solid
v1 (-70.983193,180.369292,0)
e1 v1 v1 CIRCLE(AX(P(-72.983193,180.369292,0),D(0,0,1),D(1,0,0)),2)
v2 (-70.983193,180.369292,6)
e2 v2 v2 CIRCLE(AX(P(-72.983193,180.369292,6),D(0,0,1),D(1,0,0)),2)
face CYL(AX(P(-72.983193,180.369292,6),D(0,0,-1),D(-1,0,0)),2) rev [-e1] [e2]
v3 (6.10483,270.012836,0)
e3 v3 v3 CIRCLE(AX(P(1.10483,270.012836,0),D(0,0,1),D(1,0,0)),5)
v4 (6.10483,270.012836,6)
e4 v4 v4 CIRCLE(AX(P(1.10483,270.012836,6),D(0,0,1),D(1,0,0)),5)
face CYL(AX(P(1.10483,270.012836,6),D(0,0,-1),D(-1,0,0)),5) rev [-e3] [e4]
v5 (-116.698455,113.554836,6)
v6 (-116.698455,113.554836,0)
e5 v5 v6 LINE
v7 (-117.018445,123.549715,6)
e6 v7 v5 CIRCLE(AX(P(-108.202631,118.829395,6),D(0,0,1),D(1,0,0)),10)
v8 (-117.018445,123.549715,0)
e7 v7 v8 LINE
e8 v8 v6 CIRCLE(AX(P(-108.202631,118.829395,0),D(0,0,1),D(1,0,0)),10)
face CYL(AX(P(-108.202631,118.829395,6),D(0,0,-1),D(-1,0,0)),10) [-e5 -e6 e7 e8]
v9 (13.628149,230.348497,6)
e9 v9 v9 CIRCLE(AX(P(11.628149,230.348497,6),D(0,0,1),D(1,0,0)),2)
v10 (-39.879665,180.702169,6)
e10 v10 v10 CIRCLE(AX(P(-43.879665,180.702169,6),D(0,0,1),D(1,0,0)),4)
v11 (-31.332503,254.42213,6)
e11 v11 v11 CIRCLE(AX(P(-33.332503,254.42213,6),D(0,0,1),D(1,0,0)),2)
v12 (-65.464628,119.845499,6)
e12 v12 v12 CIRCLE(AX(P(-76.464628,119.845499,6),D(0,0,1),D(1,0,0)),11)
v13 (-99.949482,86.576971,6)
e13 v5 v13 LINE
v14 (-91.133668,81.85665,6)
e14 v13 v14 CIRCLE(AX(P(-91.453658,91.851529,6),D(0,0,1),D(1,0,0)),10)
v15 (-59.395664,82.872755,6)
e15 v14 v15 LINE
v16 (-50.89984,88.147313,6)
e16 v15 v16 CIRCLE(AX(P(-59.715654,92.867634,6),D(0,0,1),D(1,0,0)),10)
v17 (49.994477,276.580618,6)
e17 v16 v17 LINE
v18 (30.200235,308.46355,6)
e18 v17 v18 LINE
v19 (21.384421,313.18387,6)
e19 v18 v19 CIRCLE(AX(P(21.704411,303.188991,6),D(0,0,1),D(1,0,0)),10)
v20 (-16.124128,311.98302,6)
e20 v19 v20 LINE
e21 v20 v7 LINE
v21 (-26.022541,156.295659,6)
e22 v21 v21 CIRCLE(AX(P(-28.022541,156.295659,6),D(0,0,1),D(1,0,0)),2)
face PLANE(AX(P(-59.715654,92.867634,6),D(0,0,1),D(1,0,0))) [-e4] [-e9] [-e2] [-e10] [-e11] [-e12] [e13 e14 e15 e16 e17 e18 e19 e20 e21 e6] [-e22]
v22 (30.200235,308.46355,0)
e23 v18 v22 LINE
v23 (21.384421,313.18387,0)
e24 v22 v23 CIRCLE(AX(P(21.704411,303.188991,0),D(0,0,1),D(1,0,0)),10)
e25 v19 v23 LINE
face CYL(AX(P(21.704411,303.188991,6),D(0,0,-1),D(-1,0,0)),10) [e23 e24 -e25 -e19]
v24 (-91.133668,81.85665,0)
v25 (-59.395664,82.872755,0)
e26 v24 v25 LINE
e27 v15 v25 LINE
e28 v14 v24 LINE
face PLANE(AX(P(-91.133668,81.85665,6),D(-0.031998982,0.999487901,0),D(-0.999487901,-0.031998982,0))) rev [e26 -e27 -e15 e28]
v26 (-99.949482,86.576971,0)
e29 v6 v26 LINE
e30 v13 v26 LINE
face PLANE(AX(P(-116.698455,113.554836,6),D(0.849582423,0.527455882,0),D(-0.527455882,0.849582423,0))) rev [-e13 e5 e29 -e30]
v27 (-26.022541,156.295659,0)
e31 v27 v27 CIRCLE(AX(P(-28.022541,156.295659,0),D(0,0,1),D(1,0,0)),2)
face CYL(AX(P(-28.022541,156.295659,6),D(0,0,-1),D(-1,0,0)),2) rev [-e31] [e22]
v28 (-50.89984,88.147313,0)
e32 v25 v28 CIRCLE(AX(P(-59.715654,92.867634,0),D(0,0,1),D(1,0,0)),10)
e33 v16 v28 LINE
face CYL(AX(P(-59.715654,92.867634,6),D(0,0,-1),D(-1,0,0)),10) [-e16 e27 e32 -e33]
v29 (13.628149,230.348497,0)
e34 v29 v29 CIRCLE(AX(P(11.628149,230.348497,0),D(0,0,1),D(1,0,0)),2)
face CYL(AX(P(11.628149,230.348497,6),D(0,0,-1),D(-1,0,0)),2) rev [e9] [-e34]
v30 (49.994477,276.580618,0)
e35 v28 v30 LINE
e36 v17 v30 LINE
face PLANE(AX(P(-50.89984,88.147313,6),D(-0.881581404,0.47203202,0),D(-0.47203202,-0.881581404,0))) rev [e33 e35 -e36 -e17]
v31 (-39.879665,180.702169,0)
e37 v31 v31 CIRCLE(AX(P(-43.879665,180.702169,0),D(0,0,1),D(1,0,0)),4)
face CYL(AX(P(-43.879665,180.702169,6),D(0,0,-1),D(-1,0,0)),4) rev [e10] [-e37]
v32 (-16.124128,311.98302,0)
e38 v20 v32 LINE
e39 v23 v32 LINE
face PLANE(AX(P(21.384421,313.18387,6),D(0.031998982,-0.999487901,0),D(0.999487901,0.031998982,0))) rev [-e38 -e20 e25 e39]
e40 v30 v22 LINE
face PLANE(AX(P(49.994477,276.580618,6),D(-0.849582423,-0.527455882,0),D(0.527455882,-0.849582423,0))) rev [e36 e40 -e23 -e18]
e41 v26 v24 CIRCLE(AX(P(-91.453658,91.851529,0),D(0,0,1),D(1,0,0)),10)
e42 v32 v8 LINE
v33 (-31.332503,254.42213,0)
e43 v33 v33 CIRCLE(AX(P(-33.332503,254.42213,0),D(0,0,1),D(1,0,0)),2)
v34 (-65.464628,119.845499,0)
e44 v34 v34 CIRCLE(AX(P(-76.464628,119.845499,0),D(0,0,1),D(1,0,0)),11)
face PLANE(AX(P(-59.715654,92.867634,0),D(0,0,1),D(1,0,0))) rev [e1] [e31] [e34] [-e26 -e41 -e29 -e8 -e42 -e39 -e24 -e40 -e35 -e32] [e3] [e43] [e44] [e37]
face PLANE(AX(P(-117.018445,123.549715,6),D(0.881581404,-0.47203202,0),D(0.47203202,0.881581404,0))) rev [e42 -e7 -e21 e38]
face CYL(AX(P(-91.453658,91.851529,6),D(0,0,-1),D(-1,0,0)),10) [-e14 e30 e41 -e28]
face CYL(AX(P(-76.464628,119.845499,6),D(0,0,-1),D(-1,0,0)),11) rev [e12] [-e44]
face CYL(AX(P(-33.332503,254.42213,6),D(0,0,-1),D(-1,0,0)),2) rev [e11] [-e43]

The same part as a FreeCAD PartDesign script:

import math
import FreeCAD as App
import Part
import Sketcher

V = App.Vector

doc = App.newDocument("Part")
params = doc.addObject("Spreadsheet::Sheet", "Params")
for row, (alias, value) in enumerate([
    ("sketch1_diameter", "22 mm"),
    ("sketch1_diameter2", "4 mm"),
    ("sketch1_diameter3", "8 mm"),
    ("sketch1_diameter4", "10 mm"),
    ("sketch1_radius", "10 mm"),
    ("pad1_length", "6 mm"),
], start=1):
    params.set(f"A{row}", alias)
    params.set(f"B{row}", "=" + value)
    params.setAlias(f"B{row}", alias)

body = doc.addObject("PartDesign::Body", "Body")

# Sketch on XY plane
sketch1 = body.newObject("Sketcher::SketchObject", "Sketch")
sketch1.AttachmentSupport = (doc.getObject("XY_Plane"), [""])
sketch1.MapMode = "FlatFace"
sketch1.addGeometry(Part.LineSegment(V(-91.1, 81.9, 0), V(-59.4, 82.9, 0)), False)
sketch1.addGeometry(Part.ArcOfCircle(Part.Circle(V(-59.7, 92.9, 0), V(0, 0, 1), 10), math.radians(-88), math.radians(-28)), False)
sketch1.addGeometry(Part.LineSegment(V(-50.9, 88.1, 0), V(50, 276.6, 0)), False)
sketch1.addGeometry(Part.LineSegment(V(50, 276.6, 0), V(30.2, 308.5, 0)), False)
sketch1.addGeometry(Part.ArcOfCircle(Part.Circle(V(21.7, 303.2, 0), V(0, 0, 1), 10), math.radians(32), math.radians(92)), False)
sketch1.addGeometry(Part.LineSegment(V(21.4, 313.2, 0), V(-16.1, 312, 0)), False)
sketch1.addGeometry(Part.LineSegment(V(-16.1, 312, 0), V(-117, 123.5, 0)), False)
sketch1.addGeometry(Part.ArcOfCircle(Part.Circle(V(-108.2, 118.8, 0), V(0, 0, 1), 10), math.radians(152), math.radians(212)), False)
sketch1.addGeometry(Part.LineSegment(V(-116.7, 113.6, 0), V(-99.9, 86.6, 0)), False)
sketch1.addGeometry(Part.ArcOfCircle(Part.Circle(V(-91.5, 91.9, 0), V(0, 0, 1), 10), math.radians(-148), math.radians(-88)), False)
sketch1.addGeometry(Part.Circle(V(-76.5, 119.8, 0), V(0, 0, 1), 11), False)
sketch1.addGeometry(Part.Circle(V(-73, 180.4, 0), V(0, 0, 1), 2), False)
sketch1.addGeometry(Part.Circle(V(-43.9, 180.7, 0), V(0, 0, 1), 4), False)
sketch1.addGeometry(Part.Circle(V(-28, 156.3, 0), V(0, 0, 1), 2), False)
sketch1.addGeometry(Part.Circle(V(11.6, 230.3, 0), V(0, 0, 1), 2), False)
sketch1.addGeometry(Part.Circle(V(-33.3, 254.4, 0), V(0, 0, 1), 2), False)
sketch1.addGeometry(Part.Circle(V(1.1, 270, 0), V(0, 0, 1), 5), False)
sketch1.addConstraint(Sketcher.Constraint("Tangent", 0, 2, 1, 1))
sketch1.addConstraint(Sketcher.Constraint("Tangent", 1, 2, 2, 1))
sketch1.addConstraint(Sketcher.Constraint("Coincident", 2, 2, 3, 1))
sketch1.addConstraint(Sketcher.Constraint("Tangent", 3, 2, 4, 1))
sketch1.addConstraint(Sketcher.Constraint("Tangent", 4, 2, 5, 1))
sketch1.addConstraint(Sketcher.Constraint("Coincident", 5, 2, 6, 1))
sketch1.addConstraint(Sketcher.Constraint("Tangent", 6, 2, 7, 1))
sketch1.addConstraint(Sketcher.Constraint("Tangent", 7, 2, 8, 1))
sketch1.addConstraint(Sketcher.Constraint("Tangent", 8, 2, 9, 1))
sketch1.addConstraint(Sketcher.Constraint("Tangent", 9, 2, 0, 1))
sketch1.addConstraint(Sketcher.Constraint("Equal", 1, 4))
sketch1.addConstraint(Sketcher.Constraint("Equal", 4, 7))
sketch1.addConstraint(Sketcher.Constraint("Equal", 7, 9))
sketch1.addConstraint(Sketcher.Constraint("Equal", 11, 13))
sketch1.addConstraint(Sketcher.Constraint("Equal", 13, 14))
sketch1.addConstraint(Sketcher.Constraint("Equal", 14, 15))
sketch1.addConstraint(Sketcher.Constraint("Parallel", 0, 5))
sketch1.addConstraint(Sketcher.Constraint("Parallel", 2, 6))
sketch1.addConstraint(Sketcher.Constraint("Parallel", 3, 8))
sketch1.addConstraint(Sketcher.Constraint("Equal", 3, 5))
sketch1.addConstraint(Sketcher.Constraint("Equal", 2, 6))
sketch1.addConstraint(Sketcher.Constraint("Equal", 0, 8))
sketch1.addConstraint(Sketcher.Constraint("Diameter", 10, 22.0))
sketch1.addConstraint(Sketcher.Constraint("Diameter", 11, 4.0))
sketch1.addConstraint(Sketcher.Constraint("Diameter", 12, 8.0))
sketch1.addConstraint(Sketcher.Constraint("Diameter", 16, 10.0))
sketch1.addConstraint(Sketcher.Constraint("Radius", 1, 10.0))
sketch1.addConstraint(Sketcher.Constraint("DistanceY", 10, 3, 14, 3, 110.502999))
sketch1.addConstraint(Sketcher.Constraint("DistanceY", -1, 1, 10, 3, 119.845499))
sketch1.addConstraint(Sketcher.Constraint("DistanceY", 11, 3, 4, 3, 122.819699))
sketch1.addConstraint(Sketcher.Constraint("DistanceX", 7, 2, 1, 3, 56.982801))
sketch1.addConstraint(Sketcher.Constraint("DistanceX", -1, 1, 4, 3, 21.704411))
sketch1.addConstraint(Sketcher.Constraint("DistanceY", -1, 1, 4, 3, 303.188991))
sketch1.addConstraint(Sketcher.Constraint("DistanceX", 7, 3, -1, 1, 108.202631))
sketch1.addConstraint(Sketcher.Constraint("DistanceY", -1, 1, 9, 3, 91.851529))
sketch1.addConstraint(Sketcher.Constraint("DistanceY", -1, 1, 12, 3, 180.702169))
sketch1.addConstraint(Sketcher.Constraint("DistanceX", 13, 3, -1, 1, 28.022541))
sketch1.addConstraint(Sketcher.Constraint("DistanceY", -1, 1, 13, 3, 156.295659))
sketch1.addConstraint(Sketcher.Constraint("DistanceX", -1, 1, 14, 3, 11.628149))
sketch1.addConstraint(Sketcher.Constraint("DistanceY", -1, 1, 15, 3, 254.42213))
sketch1.addConstraint(Sketcher.Constraint("DistanceX", -1, 1, 16, 3, 1.10483))
sketch1.addConstraint(Sketcher.Constraint("DistanceX", 1, 2, -1, 1, 50.89984))
sketch1.addConstraint(Sketcher.Constraint("DistanceX", 9, 3, 10, 3, 14.98903))
sketch1.addConstraint(Sketcher.Constraint("DistanceX", 7, 3, 11, 3, 35.219439))
sketch1.addConstraint(Sketcher.Constraint("DistanceX", 1, 3, 12, 3, 15.835989))
sketch1.addConstraint(Sketcher.Constraint("DistanceX", 15, 3, 14, 3, 44.960652))
sketch1.addConstraint(Sketcher.Constraint("DistanceY", 14, 3, 16, 3, 39.664339))
sketch1.setExpression("Constraints[22]", "Params.sketch1_diameter")
sketch1.setExpression("Constraints[23]", "Params.sketch1_diameter2")
sketch1.setExpression("Constraints[24]", "Params.sketch1_diameter3")
sketch1.setExpression("Constraints[25]", "Params.sketch1_diameter4")
sketch1.setExpression("Constraints[26]", "Params.sketch1_radius")
pad1 = body.newObject("PartDesign::Pad", "Pad")
pad1.Profile = sketch1
pad1.setExpression("Length", "Params.pad1_length")

doc.recompute()
